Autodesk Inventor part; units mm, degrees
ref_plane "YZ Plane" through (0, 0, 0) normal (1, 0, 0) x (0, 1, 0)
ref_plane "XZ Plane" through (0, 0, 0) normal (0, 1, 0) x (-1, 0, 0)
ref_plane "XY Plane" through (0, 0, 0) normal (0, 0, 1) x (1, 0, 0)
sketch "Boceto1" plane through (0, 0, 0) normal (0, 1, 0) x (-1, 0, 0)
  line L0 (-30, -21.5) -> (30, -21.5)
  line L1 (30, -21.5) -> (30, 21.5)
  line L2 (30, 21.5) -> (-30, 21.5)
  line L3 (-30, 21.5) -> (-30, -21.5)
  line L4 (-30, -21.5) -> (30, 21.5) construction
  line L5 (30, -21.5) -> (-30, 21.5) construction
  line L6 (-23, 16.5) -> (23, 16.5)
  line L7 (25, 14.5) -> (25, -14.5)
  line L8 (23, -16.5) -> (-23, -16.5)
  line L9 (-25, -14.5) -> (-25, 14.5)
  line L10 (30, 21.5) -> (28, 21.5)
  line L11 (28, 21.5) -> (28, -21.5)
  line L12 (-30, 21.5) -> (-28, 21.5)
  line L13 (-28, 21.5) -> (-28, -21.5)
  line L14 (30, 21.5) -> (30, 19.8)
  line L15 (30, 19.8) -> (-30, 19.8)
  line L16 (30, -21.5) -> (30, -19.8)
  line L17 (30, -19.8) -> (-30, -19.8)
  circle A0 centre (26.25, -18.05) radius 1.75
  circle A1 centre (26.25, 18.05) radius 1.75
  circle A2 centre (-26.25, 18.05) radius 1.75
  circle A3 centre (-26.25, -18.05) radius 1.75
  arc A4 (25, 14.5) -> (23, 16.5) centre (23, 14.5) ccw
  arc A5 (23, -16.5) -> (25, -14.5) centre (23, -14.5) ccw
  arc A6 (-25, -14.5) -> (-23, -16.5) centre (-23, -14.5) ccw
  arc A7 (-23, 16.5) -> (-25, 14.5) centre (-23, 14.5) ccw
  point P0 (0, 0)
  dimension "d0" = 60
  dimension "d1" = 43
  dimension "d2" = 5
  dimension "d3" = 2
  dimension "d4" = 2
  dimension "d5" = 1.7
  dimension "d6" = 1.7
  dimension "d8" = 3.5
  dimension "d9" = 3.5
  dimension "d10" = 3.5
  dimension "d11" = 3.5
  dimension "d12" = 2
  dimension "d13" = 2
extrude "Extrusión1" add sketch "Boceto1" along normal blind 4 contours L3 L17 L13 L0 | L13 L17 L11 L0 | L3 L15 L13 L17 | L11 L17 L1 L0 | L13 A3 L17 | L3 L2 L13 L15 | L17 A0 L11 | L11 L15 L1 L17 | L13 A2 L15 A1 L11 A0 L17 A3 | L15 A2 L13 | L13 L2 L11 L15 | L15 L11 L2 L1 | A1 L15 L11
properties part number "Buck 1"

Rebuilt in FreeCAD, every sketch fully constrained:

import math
import FreeCAD as App
import Part
import Sketcher

V = App.Vector
Q = App.Units.Quantity


def add_polygon(sketch, points):
    """Adds a closed chain of lines whose ends are joined by coincident constraints."""
    first, n = sketch.GeometryCount, len(points)
    for a, b in zip(points, points[1:] + points[:1]):
        sketch.addGeometry(Part.LineSegment(App.Vector(*a, 0), App.Vector(*b, 0)), False)
    for i in range(n):
        sketch.addConstraint(Sketcher.Constraint("Coincident", first + i, 2, first + (i + 1) % n, 1))

doc = App.newDocument("Part")
body = doc.addObject("PartDesign::Body", "Body")

sketch1 = body.newObject("Sketcher::SketchObject", "Sketch")
sketch1.AttachmentSupport = (doc.getObject("XZ_Plane"), [""])
sketch1.MapMode = "FlatFace"
add_polygon(sketch1, [(30, -21.5), (-30, -21.5), (-30, 21.5), (30, 21.5)])
sketch1.addGeometry(Part.Circle(V(26.2, 18.1, 0), V(0, 0, 1), 1.8), False)
sketch1.addGeometry(Part.LineSegment(V(23, 16.5, 0), V(-23, 16.5, 0)), False)
sketch1.addGeometry(Part.ArcOfCircle(Part.Circle(V(-23, 14.5, 0), V(0, 0, 1), 2), math.radians(90), math.radians(180)), False)
sketch1.addGeometry(Part.LineSegment(V(-25, 14.5, 0), V(-25, -14.5, 0)), False)
sketch1.addGeometry(Part.ArcOfCircle(Part.Circle(V(-23, -14.5, 0), V(0, 0, 1), 2), math.radians(180), math.radians(270)), False)
sketch1.addGeometry(Part.LineSegment(V(-23, -16.5, 0), V(23, -16.5, 0)), False)
sketch1.addGeometry(Part.ArcOfCircle(Part.Circle(V(23, -14.5, 0), V(0, 0, 1), 2), math.radians(-90), math.radians(0)), False)
sketch1.addGeometry(Part.LineSegment(V(25, -14.5, 0), V(25, 14.5, 0)), False)
sketch1.addGeometry(Part.ArcOfCircle(Part.Circle(V(23, 14.5, 0), V(0, 0, 1), 2), math.radians(0), math.radians(90)), False)
sketch1.addGeometry(Part.Circle(V(-26.2, 18.1, 0), V(0, 0, 1), 1.8), False)
sketch1.addGeometry(Part.Circle(V(-26.2, -18.1, 0), V(0, 0, 1), 1.8), False)
sketch1.addGeometry(Part.Circle(V(26.2, -18.1, 0), V(0, 0, 1), 1.8), False)
sketch1.addConstraint([
    Sketcher.Constraint("Tangent", 5, 2, 6, 1),
    Sketcher.Constraint("Tangent", 6, 2, 7, 1),
    Sketcher.Constraint("Tangent", 7, 2, 8, 1),
    Sketcher.Constraint("Tangent", 8, 2, 9, 1),
    Sketcher.Constraint("Tangent", 9, 2, 10, 1),
    Sketcher.Constraint("Tangent", 10, 2, 11, 1),
    Sketcher.Constraint("Tangent", 11, 2, 12, 1),
    Sketcher.Constraint("Tangent", 12, 2, 5, 1),
    Sketcher.Constraint("Horizontal", 0),
    Sketcher.Constraint("Vertical", 1),
    Sketcher.Constraint("Horizontal", 2),
    Sketcher.Constraint("Vertical", 3),
    Sketcher.Constraint("Horizontal", 5),
    Sketcher.Constraint("Vertical", 7),
    Sketcher.Constraint("Horizontal", 9),
    Sketcher.Constraint("Vertical", 11),
    Sketcher.Constraint("Equal", 6, 8),
    Sketcher.Constraint("Equal", 8, 10),
    Sketcher.Constraint("Equal", 10, 12),
    Sketcher.Constraint("Equal", 4, 13),
    Sketcher.Constraint("Equal", 13, 14),
    Sketcher.Constraint("Equal", 14, 15),
    Sketcher.Constraint("Symmetric", 6, 3, 10, 3, -1, 1),
    Sketcher.Constraint("Symmetric", 4, 3, 14, 3, -1, 1),
    Sketcher.Constraint("Symmetric", 13, 3, 15, 3, -1, 1),
    Sketcher.Constraint("Symmetric", 0, 2, 2, 2, -1, 1),
    Sketcher.Constraint("Symmetric", 4, 3, 13, 3, -2),
    Sketcher.Constraint("Radius", 6, Q("2 mm")),
    Sketcher.Constraint("Diameter", 4, Q("3.5 mm")),
    Sketcher.Constraint("DistanceX", 0, 2, 0, 1, Q("60 mm")),
    Sketcher.Constraint("DistanceY", 1, 1, 1, 2, Q("43 mm")),
    Sketcher.Constraint("DistanceY", 5, 2, 1, 2, Q("5 mm")),
    Sketcher.Constraint("DistanceX", 1, 2, 6, 2, Q("5 mm")),
    Sketcher.Constraint("DistanceX", 13, 3, 4, 3, Q("52.5 mm")),
    Sketcher.Constraint("DistanceY", 14, 3, 13, 3, Q("36.1 mm")),
])
pad1 = body.newObject("PartDesign::Pad", "Pad")
pad1.Profile = sketch1
pad1.Length = 4
pad1.Reversed = True

doc.recompute()
